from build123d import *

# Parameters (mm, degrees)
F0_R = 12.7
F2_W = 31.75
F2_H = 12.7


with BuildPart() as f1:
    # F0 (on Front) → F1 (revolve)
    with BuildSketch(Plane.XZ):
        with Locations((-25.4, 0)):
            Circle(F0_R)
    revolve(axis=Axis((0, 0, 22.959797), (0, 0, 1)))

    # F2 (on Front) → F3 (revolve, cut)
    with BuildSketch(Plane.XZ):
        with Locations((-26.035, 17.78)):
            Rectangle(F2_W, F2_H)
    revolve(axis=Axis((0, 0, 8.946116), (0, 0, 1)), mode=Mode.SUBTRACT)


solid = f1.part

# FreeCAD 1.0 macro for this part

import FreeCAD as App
import Part
import Sketcher
Q = App.Units.Quantity

doc = App.newDocument("Part")
body = doc.addObject("PartDesign::Body", "Body")

# Sketch on XZ plane
sketch1 = doc.addObject("Sketcher::SketchObject", "Sketch")
body.addObject(sketch1)
sketch1.AttachmentSupport = (doc.XZ_Plane, [""])
sketch1.MapMode = "FlatFace"
sketch1.addGeometry(Part.Circle(App.Vector(-25, 0, 0), App.Vector(0, 0, 1), 13), False)
sketch1.addConstraint([
    Sketcher.Constraint("PointOnObject", 0, 3, -1),
    Sketcher.Constraint("Diameter", 0, Q("1 in")),
    Sketcher.Constraint("DistanceX", 0, 3, -1, 1, Q("1 in")),
])
revolution = doc.addObject("PartDesign::Revolution", "Revolution")
body.addObject(revolution)
revolution.Profile = sketch1
revolution.ReferenceAxis = (sketch1, ["V_Axis"])
revolution.Angle = 360

# Sketch on XZ plane
sketch2 = doc.addObject("Sketcher::SketchObject", "Sketch001")
body.addObject(sketch2)
sketch2.AttachmentSupport = (doc.XZ_Plane, [""])
sketch2.MapMode = "FlatFace"
sketch2.addGeometry([
    Part.LineSegment(App.Vector(-42, 24, 0), App.Vector(-42, 11, 0)),
    Part.LineSegment(App.Vector(-42, 11, 0), App.Vector(-10, 11, 0)),
    Part.LineSegment(App.Vector(-10, 11, 0), App.Vector(-10, 24, 0)),
    Part.LineSegment(App.Vector(-10, 24, 0), App.Vector(-42, 24, 0)),
], False)
sketch2.addConstraint([
    Sketcher.Constraint("Coincident", 0, 2, 1, 1),
    Sketcher.Constraint("Coincident", 1, 2, 2, 1),
    Sketcher.Constraint("Coincident", 2, 2, 3, 1),
    Sketcher.Constraint("Coincident", 3, 2, 0, 1),
    Sketcher.Constraint("Vertical", 0),
    Sketcher.Constraint("Horizontal", 1),
    Sketcher.Constraint("Vertical", 2),
    Sketcher.Constraint("Horizontal", 3),
    Sketcher.Constraint("DistanceY", 0, 2, 0, 1, Q("0.5 in")),
    Sketcher.Constraint("DistanceX", 1, 1, 1, 2, Q("1.25 in")),
    Sketcher.Constraint("DistanceX", 1, 2, -1, 1, Q("0.4 in")),
    Sketcher.Constraint("DistanceY", -1, 1, 0, 2, Q("0.45 in")),
])
groove = doc.addObject("PartDesign::Groove", "Groove")
body.addObject(groove)
groove.Profile = sketch2
groove.ReferenceAxis = (sketch2, ["V_Axis"])
groove.Angle = 360

doc.recompute()
